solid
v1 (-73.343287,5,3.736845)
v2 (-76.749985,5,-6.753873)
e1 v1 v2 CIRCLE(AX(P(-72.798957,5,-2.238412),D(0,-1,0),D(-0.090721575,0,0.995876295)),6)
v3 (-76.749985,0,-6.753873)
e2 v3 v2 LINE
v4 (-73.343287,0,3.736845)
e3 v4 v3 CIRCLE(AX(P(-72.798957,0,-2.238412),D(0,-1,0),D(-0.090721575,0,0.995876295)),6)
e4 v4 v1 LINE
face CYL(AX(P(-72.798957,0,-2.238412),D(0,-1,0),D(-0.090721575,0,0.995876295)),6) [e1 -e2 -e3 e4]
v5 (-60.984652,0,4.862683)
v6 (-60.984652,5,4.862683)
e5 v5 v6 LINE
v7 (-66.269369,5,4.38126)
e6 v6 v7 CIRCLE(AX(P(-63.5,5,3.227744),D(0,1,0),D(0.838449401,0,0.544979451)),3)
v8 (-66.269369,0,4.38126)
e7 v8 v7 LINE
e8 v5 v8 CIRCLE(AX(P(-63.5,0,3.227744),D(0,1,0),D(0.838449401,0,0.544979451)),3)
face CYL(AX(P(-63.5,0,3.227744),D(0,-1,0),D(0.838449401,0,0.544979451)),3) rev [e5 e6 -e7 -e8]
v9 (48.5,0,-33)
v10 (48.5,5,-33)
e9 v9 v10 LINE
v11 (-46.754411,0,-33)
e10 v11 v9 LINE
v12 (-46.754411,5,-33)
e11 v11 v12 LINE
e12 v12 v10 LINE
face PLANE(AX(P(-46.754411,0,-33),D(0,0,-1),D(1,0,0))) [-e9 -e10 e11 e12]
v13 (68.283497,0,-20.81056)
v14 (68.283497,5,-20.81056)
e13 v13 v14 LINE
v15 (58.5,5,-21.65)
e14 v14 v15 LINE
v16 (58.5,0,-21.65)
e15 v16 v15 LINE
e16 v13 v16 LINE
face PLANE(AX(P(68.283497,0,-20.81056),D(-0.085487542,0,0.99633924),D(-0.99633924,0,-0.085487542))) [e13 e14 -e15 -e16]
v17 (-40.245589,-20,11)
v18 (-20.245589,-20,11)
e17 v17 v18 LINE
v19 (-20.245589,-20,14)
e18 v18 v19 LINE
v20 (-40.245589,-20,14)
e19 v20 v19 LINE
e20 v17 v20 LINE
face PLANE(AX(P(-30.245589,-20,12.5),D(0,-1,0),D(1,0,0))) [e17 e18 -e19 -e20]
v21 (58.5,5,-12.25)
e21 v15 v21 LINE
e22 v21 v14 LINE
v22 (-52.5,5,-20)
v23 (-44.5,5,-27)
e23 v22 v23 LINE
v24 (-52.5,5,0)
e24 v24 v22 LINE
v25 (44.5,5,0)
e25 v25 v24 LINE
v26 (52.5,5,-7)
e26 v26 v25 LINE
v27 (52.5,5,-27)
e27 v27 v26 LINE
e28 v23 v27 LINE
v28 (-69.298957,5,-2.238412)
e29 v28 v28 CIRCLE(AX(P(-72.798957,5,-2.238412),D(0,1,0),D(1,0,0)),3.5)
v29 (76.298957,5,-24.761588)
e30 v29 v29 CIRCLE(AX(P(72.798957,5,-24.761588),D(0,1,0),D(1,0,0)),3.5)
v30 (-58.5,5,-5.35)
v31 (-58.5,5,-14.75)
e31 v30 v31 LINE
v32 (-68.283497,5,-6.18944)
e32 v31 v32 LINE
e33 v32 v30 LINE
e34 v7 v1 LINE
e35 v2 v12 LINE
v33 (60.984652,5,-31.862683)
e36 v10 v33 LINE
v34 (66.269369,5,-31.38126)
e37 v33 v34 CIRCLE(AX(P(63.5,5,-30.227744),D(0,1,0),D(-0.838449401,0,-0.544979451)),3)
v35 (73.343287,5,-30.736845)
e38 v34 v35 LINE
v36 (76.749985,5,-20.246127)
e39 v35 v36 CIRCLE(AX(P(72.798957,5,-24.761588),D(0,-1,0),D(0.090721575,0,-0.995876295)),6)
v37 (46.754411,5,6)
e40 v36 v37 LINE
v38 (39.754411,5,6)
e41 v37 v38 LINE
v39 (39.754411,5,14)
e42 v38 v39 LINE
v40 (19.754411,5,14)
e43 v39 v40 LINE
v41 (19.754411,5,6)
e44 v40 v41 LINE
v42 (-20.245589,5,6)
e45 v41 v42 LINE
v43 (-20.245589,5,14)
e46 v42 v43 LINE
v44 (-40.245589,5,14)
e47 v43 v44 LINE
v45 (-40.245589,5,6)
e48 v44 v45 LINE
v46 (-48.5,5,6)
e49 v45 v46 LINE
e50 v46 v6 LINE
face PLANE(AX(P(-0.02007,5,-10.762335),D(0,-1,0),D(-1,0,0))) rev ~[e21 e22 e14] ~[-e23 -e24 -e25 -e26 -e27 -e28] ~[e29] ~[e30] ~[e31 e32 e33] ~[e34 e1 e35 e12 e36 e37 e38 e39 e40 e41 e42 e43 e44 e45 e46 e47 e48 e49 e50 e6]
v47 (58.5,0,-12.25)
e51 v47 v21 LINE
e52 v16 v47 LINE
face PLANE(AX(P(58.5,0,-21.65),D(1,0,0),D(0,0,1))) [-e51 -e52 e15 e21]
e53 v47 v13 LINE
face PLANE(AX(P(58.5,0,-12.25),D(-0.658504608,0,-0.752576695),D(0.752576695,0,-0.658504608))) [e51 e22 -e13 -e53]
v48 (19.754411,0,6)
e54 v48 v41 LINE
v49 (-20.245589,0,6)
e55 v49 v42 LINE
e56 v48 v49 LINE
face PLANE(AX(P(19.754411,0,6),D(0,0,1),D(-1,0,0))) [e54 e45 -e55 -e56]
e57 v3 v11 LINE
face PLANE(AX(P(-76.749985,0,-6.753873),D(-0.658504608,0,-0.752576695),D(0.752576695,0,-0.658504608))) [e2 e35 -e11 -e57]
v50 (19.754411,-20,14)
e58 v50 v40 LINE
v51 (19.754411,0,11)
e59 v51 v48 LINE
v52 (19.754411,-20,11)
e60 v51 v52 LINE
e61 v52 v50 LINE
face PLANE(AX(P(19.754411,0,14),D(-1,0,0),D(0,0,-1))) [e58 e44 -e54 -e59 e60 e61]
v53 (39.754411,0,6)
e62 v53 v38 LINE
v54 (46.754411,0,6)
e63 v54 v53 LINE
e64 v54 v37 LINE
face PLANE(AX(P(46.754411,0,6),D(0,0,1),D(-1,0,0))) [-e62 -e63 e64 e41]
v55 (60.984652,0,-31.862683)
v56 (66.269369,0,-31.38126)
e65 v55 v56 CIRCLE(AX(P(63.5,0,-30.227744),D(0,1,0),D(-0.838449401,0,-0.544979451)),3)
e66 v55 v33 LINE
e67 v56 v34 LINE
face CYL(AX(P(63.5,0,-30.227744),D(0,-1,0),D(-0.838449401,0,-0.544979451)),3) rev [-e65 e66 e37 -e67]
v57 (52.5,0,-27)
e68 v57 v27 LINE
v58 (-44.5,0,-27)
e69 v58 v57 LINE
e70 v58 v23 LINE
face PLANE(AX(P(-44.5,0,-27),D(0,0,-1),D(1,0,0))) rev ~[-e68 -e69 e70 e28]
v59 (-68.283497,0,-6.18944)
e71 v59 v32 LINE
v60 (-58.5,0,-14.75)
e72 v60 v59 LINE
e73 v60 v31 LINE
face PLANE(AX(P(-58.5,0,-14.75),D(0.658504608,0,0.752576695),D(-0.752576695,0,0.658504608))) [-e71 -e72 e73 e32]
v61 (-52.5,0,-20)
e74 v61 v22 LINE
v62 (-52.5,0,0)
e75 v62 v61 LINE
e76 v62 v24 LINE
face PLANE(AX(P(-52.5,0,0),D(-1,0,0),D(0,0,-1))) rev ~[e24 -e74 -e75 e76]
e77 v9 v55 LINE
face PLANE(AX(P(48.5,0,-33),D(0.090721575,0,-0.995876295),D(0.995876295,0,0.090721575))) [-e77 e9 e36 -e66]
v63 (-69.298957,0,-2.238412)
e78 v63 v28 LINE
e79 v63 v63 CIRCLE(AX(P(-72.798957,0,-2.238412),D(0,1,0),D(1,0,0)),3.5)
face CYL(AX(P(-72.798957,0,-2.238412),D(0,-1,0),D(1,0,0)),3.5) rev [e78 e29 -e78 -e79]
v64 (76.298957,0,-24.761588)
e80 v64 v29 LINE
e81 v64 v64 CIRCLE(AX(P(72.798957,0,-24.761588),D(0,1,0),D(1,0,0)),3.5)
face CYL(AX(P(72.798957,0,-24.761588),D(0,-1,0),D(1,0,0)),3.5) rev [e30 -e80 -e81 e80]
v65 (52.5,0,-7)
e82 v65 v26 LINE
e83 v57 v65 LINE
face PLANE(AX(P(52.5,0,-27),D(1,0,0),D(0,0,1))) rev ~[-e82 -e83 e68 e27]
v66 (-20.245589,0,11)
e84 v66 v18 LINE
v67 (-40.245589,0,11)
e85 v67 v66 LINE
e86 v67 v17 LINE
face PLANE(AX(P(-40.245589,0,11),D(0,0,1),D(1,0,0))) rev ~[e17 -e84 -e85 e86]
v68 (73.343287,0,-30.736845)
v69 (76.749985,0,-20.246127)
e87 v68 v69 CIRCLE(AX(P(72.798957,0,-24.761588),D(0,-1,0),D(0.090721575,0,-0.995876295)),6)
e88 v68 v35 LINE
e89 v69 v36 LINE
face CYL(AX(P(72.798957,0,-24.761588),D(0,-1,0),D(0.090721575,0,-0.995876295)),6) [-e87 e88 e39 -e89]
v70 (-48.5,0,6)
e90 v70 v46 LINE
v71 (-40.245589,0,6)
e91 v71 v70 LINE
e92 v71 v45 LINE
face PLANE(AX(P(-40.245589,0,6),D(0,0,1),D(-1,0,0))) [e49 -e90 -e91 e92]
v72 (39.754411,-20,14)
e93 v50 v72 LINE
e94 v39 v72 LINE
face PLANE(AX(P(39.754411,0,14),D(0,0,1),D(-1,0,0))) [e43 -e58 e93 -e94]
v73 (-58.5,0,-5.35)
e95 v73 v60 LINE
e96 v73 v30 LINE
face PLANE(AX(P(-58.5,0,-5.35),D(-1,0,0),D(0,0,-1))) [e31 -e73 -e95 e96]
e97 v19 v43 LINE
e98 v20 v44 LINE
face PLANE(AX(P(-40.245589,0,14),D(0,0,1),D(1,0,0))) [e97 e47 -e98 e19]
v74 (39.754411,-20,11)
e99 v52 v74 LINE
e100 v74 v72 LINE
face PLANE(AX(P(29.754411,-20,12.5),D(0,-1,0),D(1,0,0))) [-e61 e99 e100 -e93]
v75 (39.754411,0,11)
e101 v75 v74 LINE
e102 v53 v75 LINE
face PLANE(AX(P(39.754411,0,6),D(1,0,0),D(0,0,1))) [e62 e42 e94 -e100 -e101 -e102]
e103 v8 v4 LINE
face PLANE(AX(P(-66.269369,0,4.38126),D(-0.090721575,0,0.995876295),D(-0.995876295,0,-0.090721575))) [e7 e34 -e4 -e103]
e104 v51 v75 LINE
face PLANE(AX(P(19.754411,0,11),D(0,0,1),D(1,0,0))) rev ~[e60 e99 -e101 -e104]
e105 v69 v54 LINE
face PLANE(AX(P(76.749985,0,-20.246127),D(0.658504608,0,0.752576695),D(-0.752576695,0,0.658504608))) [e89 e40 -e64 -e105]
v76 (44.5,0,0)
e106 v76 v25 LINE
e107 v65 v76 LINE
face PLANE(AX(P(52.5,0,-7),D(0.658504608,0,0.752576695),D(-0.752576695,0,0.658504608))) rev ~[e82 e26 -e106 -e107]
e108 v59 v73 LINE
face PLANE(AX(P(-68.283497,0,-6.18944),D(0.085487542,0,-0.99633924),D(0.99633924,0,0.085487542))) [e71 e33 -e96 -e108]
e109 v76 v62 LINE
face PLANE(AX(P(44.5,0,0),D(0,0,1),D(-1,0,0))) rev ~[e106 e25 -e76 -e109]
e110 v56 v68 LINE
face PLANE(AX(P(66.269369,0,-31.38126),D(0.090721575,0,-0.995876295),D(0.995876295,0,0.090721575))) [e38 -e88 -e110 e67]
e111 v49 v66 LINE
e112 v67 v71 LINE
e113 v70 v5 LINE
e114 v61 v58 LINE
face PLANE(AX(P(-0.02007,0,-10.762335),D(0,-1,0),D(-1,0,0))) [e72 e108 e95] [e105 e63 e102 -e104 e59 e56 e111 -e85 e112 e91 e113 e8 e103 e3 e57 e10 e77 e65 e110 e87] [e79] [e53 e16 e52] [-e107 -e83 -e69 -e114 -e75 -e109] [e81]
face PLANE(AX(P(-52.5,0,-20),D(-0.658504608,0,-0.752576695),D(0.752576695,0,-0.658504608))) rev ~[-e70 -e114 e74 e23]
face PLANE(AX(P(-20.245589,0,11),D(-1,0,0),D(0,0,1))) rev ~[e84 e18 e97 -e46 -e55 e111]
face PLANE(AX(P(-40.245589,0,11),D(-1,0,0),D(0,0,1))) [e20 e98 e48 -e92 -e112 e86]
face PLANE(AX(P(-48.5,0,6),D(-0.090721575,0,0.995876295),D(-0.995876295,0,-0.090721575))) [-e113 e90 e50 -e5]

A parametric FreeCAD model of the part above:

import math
import FreeCAD as App
import Part
import Sketcher
from FreeCAD import Vector

doc = App.newDocument("Part")
body = doc.addObject("PartDesign::Body", "Body")

# Sketch on XZ plane
sketch1 = doc.addObject("Sketcher::SketchObject", "Sketch")
body.addObject(sketch1)
sketch1.AttachmentSupport = (doc.XZ_Plane, [""])
sketch1.MapMode = "FlatFace"
sketch1.addGeometry([
    Part.LineSegment(Vector(48.5, -33, 0), Vector(-46.754411, -33, 0)),  # 0
    Part.LineSegment(Vector(-46.754411, -33, 0), Vector(-76.749985, -6.753873, 0)),  # 1
    Part.ArcOfCircle(Part.Circle(Vector(-72.798957, -2.238412, 0), Vector(0, 0, 1), 6), math.radians(95.20512), math.radians(228.814075)),  # 2
    Part.LineSegment(Vector(-73.343287, 3.736845, 0), Vector(-66.269369, 4.38126, 0)),  # 3
    Part.ArcOfCircle(Part.Circle(Vector(-63.5, 3.227744, 0), Vector(0, 0, 1), 3), math.radians(157.386981), math.radians(393.023259)),  # 4
    Part.LineSegment(Vector(-60.984652, 4.862683, 0), Vector(-48.5, 6, 0)),  # 5
    Part.LineSegment(Vector(-48.5, 6, 0), Vector(-40.245589, 6, 0)),  # 6
    Part.LineSegment(Vector(-40.245589, 6, 0), Vector(-40.245589, 14, 0)),  # 7
    Part.LineSegment(Vector(-40.245589, 14, 0), Vector(-20.245589, 14, 0)),  # 8
    Part.LineSegment(Vector(-20.245589, 14, 0), Vector(-20.245589, 6, 0)),  # 9
    Part.LineSegment(Vector(-20.245589, 6, 0), Vector(19.754411, 6, 0)),  # 10
    Part.LineSegment(Vector(19.754411, 6, 0), Vector(19.754411, 14, 0)),  # 11
    Part.LineSegment(Vector(19.754411, 14, 0), Vector(39.754411, 14, 0)),  # 12
    Part.LineSegment(Vector(39.754411, 14, 0), Vector(39.754411, 6, 0)),  # 13
    Part.LineSegment(Vector(39.754411, 6, 0), Vector(46.754411, 6, 0)),  # 14
    Part.LineSegment(Vector(46.754411, 6, 0), Vector(76.749985, -20.246127, 0)),  # 15
    Part.ArcOfCircle(Part.Circle(Vector(72.798957, -24.761588, 0), Vector(0, 0, 1), 6), math.radians(-84.79488), math.radians(48.814075)),  # 16
    Part.LineSegment(Vector(73.343287, -30.736845, 0), Vector(66.269369, -31.38126, 0)),  # 17
    Part.ArcOfCircle(Part.Circle(Vector(63.5, -30.227744, 0), Vector(0, 0, 1), 3), math.radians(-22.613019), math.radians(213.023259)),  # 18
    Part.LineSegment(Vector(60.984652, -31.862683, 0), Vector(48.5, -33, 0)),  # 19
    Part.Circle(Vector(-72.798957, -2.238412, 0), Vector(0, 0, 1), 3.5),  # 20
    Part.LineSegment(Vector(-58.5, -14.75, 0), Vector(-58.5, -5.35, 0)),  # 21
    Part.LineSegment(Vector(-58.5, -5.35, 0), Vector(-68.283497, -6.18944, 0)),  # 22
    Part.LineSegment(Vector(-68.283497, -6.18944, 0), Vector(-58.5, -14.75, 0)),  # 23
    Part.LineSegment(Vector(58.5, -21.65, 0), Vector(68.283497, -20.81056, 0)),  # 24
    Part.LineSegment(Vector(68.283497, -20.81056, 0), Vector(58.5, -12.25, 0)),  # 25
    Part.LineSegment(Vector(58.5, -12.25, 0), Vector(58.5, -21.65, 0)),  # 26
    Part.Circle(Vector(72.798957, -24.761588, 0), Vector(0, 0, 1), 3.5),  # 27
    Part.LineSegment(Vector(-44.5, -27, 0), Vector(52.5, -27, 0)),  # 28
    Part.LineSegment(Vector(52.5, -27, 0), Vector(52.5, -7, 0)),  # 29
    Part.LineSegment(Vector(52.5, -7, 0), Vector(44.5, 0, 0)),  # 30
    Part.LineSegment(Vector(44.5, 0, 0), Vector(-52.5, 0, 0)),  # 31
    Part.LineSegment(Vector(-52.5, 0, 0), Vector(-52.5, -20, 0)),  # 32
    Part.LineSegment(Vector(-52.5, -20, 0), Vector(-44.5, -27, 0)),  # 33
], False)
sketch1.addConstraint([
    Sketcher.Constraint("Coincident", 0, 2, 1, 1),
    Sketcher.Constraint("Tangent", 1, 2, 2, 2),
    Sketcher.Constraint("Tangent", 2, 1, 3, 1),
    Sketcher.Constraint("Coincident", 3, 2, 4, 1),
    Sketcher.Constraint("Coincident", 4, 2, 5, 1),
    Sketcher.Constraint("Coincident", 5, 2, 6, 1),
    Sketcher.Constraint("Coincident", 6, 2, 7, 1),
    Sketcher.Constraint("Coincident", 7, 2, 8, 1),
    Sketcher.Constraint("Coincident", 8, 2, 9, 1),
    Sketcher.Constraint("Coincident", 9, 2, 10, 1),
    Sketcher.Constraint("Coincident", 10, 2, 11, 1),
    Sketcher.Constraint("Coincident", 11, 2, 12, 1),
    Sketcher.Constraint("Coincident", 12, 2, 13, 1),
    Sketcher.Constraint("Coincident", 13, 2, 14, 1),
    Sketcher.Constraint("Coincident", 14, 2, 15, 1),
    Sketcher.Constraint("Tangent", 15, 2, 16, 2),
    Sketcher.Constraint("Tangent", 16, 1, 17, 1),
    Sketcher.Constraint("Coincident", 17, 2, 18, 1),
    Sketcher.Constraint("Coincident", 18, 2, 19, 1),
    Sketcher.Constraint("Coincident", 19, 2, 0, 1),
    Sketcher.Constraint("Coincident", 21, 2, 22, 1),
    Sketcher.Constraint("Coincident", 22, 2, 23, 1),
    Sketcher.Constraint("Coincident", 23, 2, 21, 1),
    Sketcher.Constraint("Coincident", 24, 2, 25, 1),
    Sketcher.Constraint("Coincident", 25, 2, 26, 1),
    Sketcher.Constraint("Coincident", 26, 2, 24, 1),
    Sketcher.Constraint("Coincident", 28, 2, 29, 1),
    Sketcher.Constraint("Coincident", 29, 2, 30, 1),
    Sketcher.Constraint("Coincident", 30, 2, 31, 1),
    Sketcher.Constraint("Coincident", 31, 2, 32, 1),
    Sketcher.Constraint("Coincident", 32, 2, 33, 1),
    Sketcher.Constraint("Coincident", 33, 2, 28, 1),
    Sketcher.Constraint("Horizontal", 0),
    Sketcher.Constraint("Horizontal", 6),
    Sketcher.Constraint("Vertical", 7),
    Sketcher.Constraint("Horizontal", 8),
    Sketcher.Constraint("Vertical", 9),
    Sketcher.Constraint("Horizontal", 10),
    Sketcher.Constraint("Vertical", 11),
    Sketcher.Constraint("Horizontal", 12),
    Sketcher.Constraint("Vertical", 13),
    Sketcher.Constraint("Horizontal", 14),
    Sketcher.Constraint("Vertical", 21),
    Sketcher.Constraint("Vertical", 26),
    Sketcher.Constraint("Horizontal", 28),
    Sketcher.Constraint("Vertical", 29),
    Sketcher.Constraint("Horizontal", 31),
    Sketcher.Constraint("Vertical", 32),
    Sketcher.Constraint("Coincident", 20, 3, 2, 3),
    Sketcher.Constraint("Coincident", 27, 3, 16, 3),
    Sketcher.Constraint("Equal", 2, 16),
    Sketcher.Constraint("Equal", 4, 18),
    Sketcher.Constraint("Equal", 20, 27),
    Sketcher.Constraint("PointOnObject", 30, 2, -1),
    Sketcher.Constraint("Parallel", 3, 5),
    Sketcher.Constraint("Parallel", 1, 15),
    Sketcher.Constraint("Parallel", 5, 17),
    Sketcher.Constraint("Parallel", 17, 19),
    Sketcher.Constraint("Parallel", 15, 23),
    Sketcher.Constraint("Parallel", 22, 24),
    Sketcher.Constraint("Parallel", 23, 25),
    Sketcher.Constraint("Parallel", 25, 30),
    Sketcher.Constraint("Parallel", 30, 33),
    Sketcher.Constraint("Horizontal", 6, 2, 9, 2),
    Sketcher.Constraint("Horizontal", 8, 2, 11, 2),
    Sketcher.Constraint("Horizontal", 10, 2, 13, 2),
    Sketcher.Constraint("Equal", 8, 12),
    Sketcher.Constraint("Equal", 28, 31),
    Sketcher.Constraint("Equal", 21, 26),
    Sketcher.Constraint("Equal", 12, 29),
    Sketcher.Constraint("Equal", 1, 15),
    Sketcher.Constraint("Equal", 3, 17),
    Sketcher.Constraint("Equal", 5, 19),
    Sketcher.Constraint("Diameter", 20, 7.0),
    Sketcher.Constraint("Radius", 2, 6.0),
    Sketcher.Constraint("Radius", 4, 3.0),
    Sketcher.Constraint("DistanceX", 8, 1, 8, 2, 20.0),
    Sketcher.Constraint("DistanceX", 10, 1, 10, 2, 40.0),
    Sketcher.Constraint("DistanceX", 14, 1, 14, 2, 7.0),
    Sketcher.Constraint("DistanceX", 28, 1, 28, 2, 97.0),
    Sketcher.Constraint("DistanceY", 7, 1, 7, 2, 8.0),
    Sketcher.Constraint("Distance", 23, 13.0),
    Sketcher.Constraint("DistanceY", 21, 1, 21, 2, 9.4),
    Sketcher.Constraint("DistanceY", 0, 2, -1, 1, 33.0),
    Sketcher.Constraint("DistanceY", -1, 1, 5, 2, 6.0),
    Sketcher.Constraint("DistanceY", 28, 2, -1, 1, 27.0),
    Sketcher.Constraint("DistanceX", 4, 3, 18, 3, 127.0),
    Sketcher.Constraint("DistanceX", 4, 3, 5, 2, 15.0),
    Sketcher.Constraint("DistanceX", 19, 2, 18, 3, 15.0),
    Sketcher.Constraint("DistanceX", 4, 3, 21, 2, 5.0),
    Sketcher.Constraint("DistanceX", 25, 2, 18, 3, 5.0),
    Sketcher.Constraint("DistanceX", 19, 2, 28, 2, 4.0),
    Sketcher.Constraint("DistanceX", 30, 2, 29, 2, 8.0),
    Sketcher.Constraint("DistanceX", 4, 3, -1, 1, 63.5),
    Sketcher.Constraint("DistanceY", 21, 2, -1, 1, 5.35),
    Sketcher.Constraint("DistanceY", 25, 2, -1, 1, 12.25),
    Sketcher.Constraint("DistanceX", 0, 2, 0, 1, 95.254411),
    Sketcher.Constraint("DistanceY", 4, 3, 2, 1, 0.509101),
    Sketcher.Constraint("DistanceX", 1, 2, 2, 1, 3.406698),
    Sketcher.Constraint("DistanceY", 17, 2, 24, 2, 10.5707),
])
pad1 = doc.addObject("PartDesign::Pad", "Pad")
body.addObject(pad1)
pad1.Profile = sketch1
pad1.Length = 5
pad1.Reversed = True

# Sketch on XZ plane
sketch2 = doc.addObject("Sketcher::SketchObject", "Sketch001")
body.addObject(sketch2)
sketch2.AttachmentSupport = (doc.XZ_Plane, [""])
sketch2.MapMode = "FlatFace"
sketch2.addGeometry([
    Part.LineSegment(Vector(-40.245589, 14, 0), Vector(-40.245589, 11, 0)),  # 0
    Part.LineSegment(Vector(-40.245589, 11, 0), Vector(-20.245589, 11, 0)),  # 1
    Part.LineSegment(Vector(-20.245589, 11, 0), Vector(-20.245589, 14, 0)),  # 2
    Part.LineSegment(Vector(-20.245589, 14, 0), Vector(-40.245589, 14, 0)),  # 3
    Part.LineSegment(Vector(19.754411, 14, 0), Vector(19.754411, 11, 0)),  # 4
    Part.LineSegment(Vector(19.754411, 11, 0), Vector(39.754411, 11, 0)),  # 5
    Part.LineSegment(Vector(39.754411, 11, 0), Vector(39.754411, 14, 0)),  # 6
    Part.LineSegment(Vector(39.754411, 14, 0), Vector(19.754411, 14, 0)),  # 7
], False)
sketch2.addConstraint([
    Sketcher.Constraint("Coincident", 0, 2, 1, 1),
    Sketcher.Constraint("Coincident", 1, 2, 2, 1),
    Sketcher.Constraint("Coincident", 2, 2, 3, 1),
    Sketcher.Constraint("Coincident", 3, 2, 0, 1),
    Sketcher.Constraint("Coincident", 4, 2, 5, 1),
    Sketcher.Constraint("Coincident", 5, 2, 6, 1),
    Sketcher.Constraint("Coincident", 6, 2, 7, 1),
    Sketcher.Constraint("Coincident", 7, 2, 4, 1),
    Sketcher.Constraint("Vertical", 0),
    Sketcher.Constraint("Horizontal", 1),
    Sketcher.Constraint("Vertical", 2),
    Sketcher.Constraint("Horizontal", 3),
    Sketcher.Constraint("Vertical", 4),
    Sketcher.Constraint("Horizontal", 5),
    Sketcher.Constraint("Vertical", 6),
    Sketcher.Constraint("Horizontal", 7),
    Sketcher.Constraint("Horizontal", 1, 2, 4, 2),
    Sketcher.Constraint("Horizontal", 3, 2, 6, 2),
    Sketcher.Constraint("Equal", 3, 5),
    Sketcher.Constraint("DistanceX", 1, 1, 1, 2, 20.0),
    Sketcher.Constraint("DistanceY", 0, 2, 0, 1, 3.0),
    Sketcher.Constraint("DistanceY", -1, 1, 0, 2, 11.0),
    Sketcher.Constraint("DistanceX", 1, 2, 4, 2, 40.0),
    Sketcher.Constraint("DistanceX", 0, 2, -1, 1, 40.245589),
])
pad2 = doc.addObject("PartDesign::Pad", "Pad001")
body.addObject(pad2)
pad2.Profile = sketch2
pad2.Length = 20

doc.recompute()
